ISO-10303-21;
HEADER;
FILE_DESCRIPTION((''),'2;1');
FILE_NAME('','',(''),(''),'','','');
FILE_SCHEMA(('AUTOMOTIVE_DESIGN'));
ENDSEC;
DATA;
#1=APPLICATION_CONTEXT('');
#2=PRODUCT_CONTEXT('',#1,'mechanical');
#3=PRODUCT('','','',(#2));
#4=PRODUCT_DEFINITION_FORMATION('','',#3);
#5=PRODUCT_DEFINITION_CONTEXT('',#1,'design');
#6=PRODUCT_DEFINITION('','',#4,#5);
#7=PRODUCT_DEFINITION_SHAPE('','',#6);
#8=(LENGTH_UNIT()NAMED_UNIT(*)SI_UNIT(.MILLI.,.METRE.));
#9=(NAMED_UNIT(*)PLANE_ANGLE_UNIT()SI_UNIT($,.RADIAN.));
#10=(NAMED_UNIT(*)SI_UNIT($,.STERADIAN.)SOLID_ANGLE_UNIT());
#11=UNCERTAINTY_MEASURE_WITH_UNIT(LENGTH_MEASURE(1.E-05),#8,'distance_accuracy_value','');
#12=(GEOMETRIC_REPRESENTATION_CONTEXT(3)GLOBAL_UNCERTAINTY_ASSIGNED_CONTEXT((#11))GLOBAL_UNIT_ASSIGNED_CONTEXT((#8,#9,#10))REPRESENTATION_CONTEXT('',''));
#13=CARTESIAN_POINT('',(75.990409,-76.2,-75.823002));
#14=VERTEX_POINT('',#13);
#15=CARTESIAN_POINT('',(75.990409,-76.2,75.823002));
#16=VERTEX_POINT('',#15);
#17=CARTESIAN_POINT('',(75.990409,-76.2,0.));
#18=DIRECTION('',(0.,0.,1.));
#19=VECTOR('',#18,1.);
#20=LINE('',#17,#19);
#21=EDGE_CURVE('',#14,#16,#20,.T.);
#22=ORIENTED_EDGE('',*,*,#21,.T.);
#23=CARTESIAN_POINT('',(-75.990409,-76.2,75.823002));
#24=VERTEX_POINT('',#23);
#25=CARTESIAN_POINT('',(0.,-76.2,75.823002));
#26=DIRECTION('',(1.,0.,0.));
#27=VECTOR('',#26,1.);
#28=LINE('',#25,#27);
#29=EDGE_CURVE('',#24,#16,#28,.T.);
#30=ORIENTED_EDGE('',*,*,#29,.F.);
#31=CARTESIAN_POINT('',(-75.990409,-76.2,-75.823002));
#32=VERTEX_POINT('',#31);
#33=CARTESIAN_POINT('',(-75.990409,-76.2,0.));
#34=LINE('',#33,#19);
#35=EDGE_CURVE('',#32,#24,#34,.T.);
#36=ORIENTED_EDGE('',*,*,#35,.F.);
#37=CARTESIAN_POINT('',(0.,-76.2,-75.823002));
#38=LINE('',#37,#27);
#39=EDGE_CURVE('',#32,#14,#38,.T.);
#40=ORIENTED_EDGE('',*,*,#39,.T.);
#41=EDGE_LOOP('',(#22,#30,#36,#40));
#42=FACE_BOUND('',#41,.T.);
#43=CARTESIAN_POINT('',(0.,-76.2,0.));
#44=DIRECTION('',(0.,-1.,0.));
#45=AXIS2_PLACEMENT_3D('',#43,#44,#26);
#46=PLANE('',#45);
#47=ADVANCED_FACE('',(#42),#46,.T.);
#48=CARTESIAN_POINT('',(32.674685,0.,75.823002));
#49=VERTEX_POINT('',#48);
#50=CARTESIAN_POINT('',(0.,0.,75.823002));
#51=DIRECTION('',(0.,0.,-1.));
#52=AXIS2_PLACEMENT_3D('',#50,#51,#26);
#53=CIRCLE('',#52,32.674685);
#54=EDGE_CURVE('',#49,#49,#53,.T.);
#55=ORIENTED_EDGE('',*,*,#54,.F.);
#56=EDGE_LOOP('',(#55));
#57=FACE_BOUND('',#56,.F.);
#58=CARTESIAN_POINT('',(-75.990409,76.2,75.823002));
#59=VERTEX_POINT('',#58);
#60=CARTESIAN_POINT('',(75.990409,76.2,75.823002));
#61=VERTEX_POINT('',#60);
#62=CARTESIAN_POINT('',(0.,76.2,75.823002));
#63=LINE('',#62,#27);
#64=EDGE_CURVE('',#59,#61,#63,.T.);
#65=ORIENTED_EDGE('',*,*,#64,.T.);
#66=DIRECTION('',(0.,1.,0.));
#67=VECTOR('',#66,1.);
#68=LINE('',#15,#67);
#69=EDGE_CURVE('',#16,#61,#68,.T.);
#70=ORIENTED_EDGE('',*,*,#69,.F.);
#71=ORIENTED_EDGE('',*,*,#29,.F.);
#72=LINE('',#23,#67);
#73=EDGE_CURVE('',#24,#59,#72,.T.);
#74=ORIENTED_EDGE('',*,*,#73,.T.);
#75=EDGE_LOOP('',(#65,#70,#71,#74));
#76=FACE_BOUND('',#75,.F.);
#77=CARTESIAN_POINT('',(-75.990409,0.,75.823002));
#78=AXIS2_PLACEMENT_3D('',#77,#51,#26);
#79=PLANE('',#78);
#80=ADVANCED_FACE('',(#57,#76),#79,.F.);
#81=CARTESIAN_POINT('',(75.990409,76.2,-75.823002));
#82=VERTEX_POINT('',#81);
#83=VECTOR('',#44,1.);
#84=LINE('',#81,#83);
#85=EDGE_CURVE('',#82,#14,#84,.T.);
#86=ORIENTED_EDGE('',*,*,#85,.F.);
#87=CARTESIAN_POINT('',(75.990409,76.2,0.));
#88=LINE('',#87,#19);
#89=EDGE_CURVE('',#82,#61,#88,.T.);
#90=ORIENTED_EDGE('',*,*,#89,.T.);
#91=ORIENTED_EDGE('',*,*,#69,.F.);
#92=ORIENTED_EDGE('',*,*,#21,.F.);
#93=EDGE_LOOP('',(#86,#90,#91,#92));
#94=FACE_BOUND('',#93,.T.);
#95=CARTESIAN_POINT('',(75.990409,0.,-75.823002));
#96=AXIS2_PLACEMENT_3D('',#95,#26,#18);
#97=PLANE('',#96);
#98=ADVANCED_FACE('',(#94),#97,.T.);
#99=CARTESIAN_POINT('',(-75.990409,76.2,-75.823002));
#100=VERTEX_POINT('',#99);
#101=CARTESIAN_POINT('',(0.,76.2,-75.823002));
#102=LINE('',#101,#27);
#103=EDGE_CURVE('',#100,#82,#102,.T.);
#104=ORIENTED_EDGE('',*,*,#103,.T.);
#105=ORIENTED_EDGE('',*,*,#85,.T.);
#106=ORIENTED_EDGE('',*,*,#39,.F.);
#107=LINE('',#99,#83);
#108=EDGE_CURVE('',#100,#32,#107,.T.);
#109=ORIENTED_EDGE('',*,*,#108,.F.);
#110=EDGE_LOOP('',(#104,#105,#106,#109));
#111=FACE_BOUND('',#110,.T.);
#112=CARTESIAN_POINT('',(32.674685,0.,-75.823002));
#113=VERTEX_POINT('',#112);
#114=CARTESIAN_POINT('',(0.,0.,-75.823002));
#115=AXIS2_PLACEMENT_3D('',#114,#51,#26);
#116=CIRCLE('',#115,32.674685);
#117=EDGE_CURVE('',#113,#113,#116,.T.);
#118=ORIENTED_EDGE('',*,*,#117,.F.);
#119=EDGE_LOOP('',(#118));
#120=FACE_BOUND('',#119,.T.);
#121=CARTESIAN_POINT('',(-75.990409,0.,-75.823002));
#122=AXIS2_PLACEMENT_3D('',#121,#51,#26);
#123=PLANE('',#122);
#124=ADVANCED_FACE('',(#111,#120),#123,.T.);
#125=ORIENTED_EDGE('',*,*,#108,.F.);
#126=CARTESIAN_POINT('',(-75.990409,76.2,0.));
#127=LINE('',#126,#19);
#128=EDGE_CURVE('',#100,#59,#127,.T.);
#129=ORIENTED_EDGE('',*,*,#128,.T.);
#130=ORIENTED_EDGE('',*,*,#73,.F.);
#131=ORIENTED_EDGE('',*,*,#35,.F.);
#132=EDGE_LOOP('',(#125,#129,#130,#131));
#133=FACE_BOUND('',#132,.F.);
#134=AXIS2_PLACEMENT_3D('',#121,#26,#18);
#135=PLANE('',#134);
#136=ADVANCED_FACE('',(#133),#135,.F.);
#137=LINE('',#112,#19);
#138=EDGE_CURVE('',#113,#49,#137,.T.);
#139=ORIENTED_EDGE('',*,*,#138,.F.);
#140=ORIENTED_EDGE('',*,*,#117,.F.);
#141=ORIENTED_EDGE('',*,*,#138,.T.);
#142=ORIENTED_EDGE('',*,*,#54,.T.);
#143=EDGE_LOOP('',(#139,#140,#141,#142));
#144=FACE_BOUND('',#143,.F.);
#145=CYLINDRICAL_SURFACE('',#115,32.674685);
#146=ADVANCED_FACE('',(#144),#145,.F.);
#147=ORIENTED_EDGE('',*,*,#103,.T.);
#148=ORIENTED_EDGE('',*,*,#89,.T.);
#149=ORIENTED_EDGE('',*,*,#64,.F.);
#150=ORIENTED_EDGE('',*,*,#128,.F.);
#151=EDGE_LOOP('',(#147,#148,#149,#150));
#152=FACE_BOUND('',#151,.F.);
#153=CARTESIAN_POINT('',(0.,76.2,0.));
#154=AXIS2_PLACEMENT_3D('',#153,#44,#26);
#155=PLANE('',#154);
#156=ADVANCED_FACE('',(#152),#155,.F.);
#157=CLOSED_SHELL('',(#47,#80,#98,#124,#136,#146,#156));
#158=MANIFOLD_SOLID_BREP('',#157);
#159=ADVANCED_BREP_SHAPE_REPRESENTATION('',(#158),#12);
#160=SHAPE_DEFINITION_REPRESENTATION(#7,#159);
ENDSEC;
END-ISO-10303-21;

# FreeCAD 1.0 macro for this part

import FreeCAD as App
import Part
import Sketcher


def add_polygon(sketch, points):
    """Adds a closed chain of lines whose ends are joined by coincident constraints."""
    first, n = sketch.GeometryCount, len(points)
    for a, b in zip(points, points[1:] + points[:1]):
        sketch.addGeometry(Part.LineSegment(App.Vector(*a, 0), App.Vector(*b, 0)), False)
    for i in range(n):
        sketch.addConstraint(Sketcher.Constraint("Coincident", first + i, 2, first + (i + 1) % n, 1))

doc = App.newDocument("Part")
params = doc.addObject("Spreadsheet::Sheet", "Params")
for row, (alias, value) in enumerate([
    ("pad1_length", "6 in"),
], start=1):
    params.set(f"A{row}", alias)
    params.set(f"B{row}", "=" + value)
    params.setAlias(f"B{row}", alias)

body = doc.addObject("PartDesign::Body", "Body")

# Sketch on XZ plane
sketch1 = body.newObject("Sketcher::SketchObject", "Sketch")
sketch1.AttachmentSupport = (doc.getObject("XZ_Plane"), [""])
sketch1.MapMode = "FlatFace"
add_polygon(sketch1, [(-76, 76), (-76, -76), (76, -76), (76, 76)])  # lines 0-3
sketch1.addConstraint([
    Sketcher.Constraint("Vertical", 0),
    Sketcher.Constraint("Horizontal", 1),
    Sketcher.Constraint("Vertical", 2),
    Sketcher.Constraint("Horizontal", 3),
    Sketcher.Constraint("Symmetric", 0, 2, 2, 2, -1, 1),
    Sketcher.Constraint("DistanceX", 1, 1, 1, 2, 151.980818),
    Sketcher.Constraint("DistanceY", 0, 2, 0, 1, 151.646004),
])
pad1 = body.newObject("PartDesign::Pad", "Pad")
pad1.Profile = sketch1
pad1.setExpression("Length", "Params.pad1_length")
pad1.Midplane = True

# Sketch on XY plane
sketch2 = body.newObject("Sketcher::SketchObject", "Sketch001")
sketch2.AttachmentSupport = (doc.getObject("XY_Plane"), [""])
sketch2.MapMode = "FlatFace"
sketch2.AttachmentOffset = App.Placement(App.Vector(0, 0, -75.823002), App.Rotation())
sketch2.addGeometry(Part.Circle(App.Vector(0, 0, 0), App.Vector(0, 0, 1), 33), False)
sketch2.addConstraint([
    Sketcher.Constraint("Coincident", 0, 3, -1, 1),
    Sketcher.Constraint("Diameter", 0, 65.34937),
])
pocket1 = body.newObject("PartDesign::Pocket", "Pocket")
pocket1.Profile = sketch2
pocket1.Type = "ThroughAll"
pocket1.Reversed = True

doc.recompute()
